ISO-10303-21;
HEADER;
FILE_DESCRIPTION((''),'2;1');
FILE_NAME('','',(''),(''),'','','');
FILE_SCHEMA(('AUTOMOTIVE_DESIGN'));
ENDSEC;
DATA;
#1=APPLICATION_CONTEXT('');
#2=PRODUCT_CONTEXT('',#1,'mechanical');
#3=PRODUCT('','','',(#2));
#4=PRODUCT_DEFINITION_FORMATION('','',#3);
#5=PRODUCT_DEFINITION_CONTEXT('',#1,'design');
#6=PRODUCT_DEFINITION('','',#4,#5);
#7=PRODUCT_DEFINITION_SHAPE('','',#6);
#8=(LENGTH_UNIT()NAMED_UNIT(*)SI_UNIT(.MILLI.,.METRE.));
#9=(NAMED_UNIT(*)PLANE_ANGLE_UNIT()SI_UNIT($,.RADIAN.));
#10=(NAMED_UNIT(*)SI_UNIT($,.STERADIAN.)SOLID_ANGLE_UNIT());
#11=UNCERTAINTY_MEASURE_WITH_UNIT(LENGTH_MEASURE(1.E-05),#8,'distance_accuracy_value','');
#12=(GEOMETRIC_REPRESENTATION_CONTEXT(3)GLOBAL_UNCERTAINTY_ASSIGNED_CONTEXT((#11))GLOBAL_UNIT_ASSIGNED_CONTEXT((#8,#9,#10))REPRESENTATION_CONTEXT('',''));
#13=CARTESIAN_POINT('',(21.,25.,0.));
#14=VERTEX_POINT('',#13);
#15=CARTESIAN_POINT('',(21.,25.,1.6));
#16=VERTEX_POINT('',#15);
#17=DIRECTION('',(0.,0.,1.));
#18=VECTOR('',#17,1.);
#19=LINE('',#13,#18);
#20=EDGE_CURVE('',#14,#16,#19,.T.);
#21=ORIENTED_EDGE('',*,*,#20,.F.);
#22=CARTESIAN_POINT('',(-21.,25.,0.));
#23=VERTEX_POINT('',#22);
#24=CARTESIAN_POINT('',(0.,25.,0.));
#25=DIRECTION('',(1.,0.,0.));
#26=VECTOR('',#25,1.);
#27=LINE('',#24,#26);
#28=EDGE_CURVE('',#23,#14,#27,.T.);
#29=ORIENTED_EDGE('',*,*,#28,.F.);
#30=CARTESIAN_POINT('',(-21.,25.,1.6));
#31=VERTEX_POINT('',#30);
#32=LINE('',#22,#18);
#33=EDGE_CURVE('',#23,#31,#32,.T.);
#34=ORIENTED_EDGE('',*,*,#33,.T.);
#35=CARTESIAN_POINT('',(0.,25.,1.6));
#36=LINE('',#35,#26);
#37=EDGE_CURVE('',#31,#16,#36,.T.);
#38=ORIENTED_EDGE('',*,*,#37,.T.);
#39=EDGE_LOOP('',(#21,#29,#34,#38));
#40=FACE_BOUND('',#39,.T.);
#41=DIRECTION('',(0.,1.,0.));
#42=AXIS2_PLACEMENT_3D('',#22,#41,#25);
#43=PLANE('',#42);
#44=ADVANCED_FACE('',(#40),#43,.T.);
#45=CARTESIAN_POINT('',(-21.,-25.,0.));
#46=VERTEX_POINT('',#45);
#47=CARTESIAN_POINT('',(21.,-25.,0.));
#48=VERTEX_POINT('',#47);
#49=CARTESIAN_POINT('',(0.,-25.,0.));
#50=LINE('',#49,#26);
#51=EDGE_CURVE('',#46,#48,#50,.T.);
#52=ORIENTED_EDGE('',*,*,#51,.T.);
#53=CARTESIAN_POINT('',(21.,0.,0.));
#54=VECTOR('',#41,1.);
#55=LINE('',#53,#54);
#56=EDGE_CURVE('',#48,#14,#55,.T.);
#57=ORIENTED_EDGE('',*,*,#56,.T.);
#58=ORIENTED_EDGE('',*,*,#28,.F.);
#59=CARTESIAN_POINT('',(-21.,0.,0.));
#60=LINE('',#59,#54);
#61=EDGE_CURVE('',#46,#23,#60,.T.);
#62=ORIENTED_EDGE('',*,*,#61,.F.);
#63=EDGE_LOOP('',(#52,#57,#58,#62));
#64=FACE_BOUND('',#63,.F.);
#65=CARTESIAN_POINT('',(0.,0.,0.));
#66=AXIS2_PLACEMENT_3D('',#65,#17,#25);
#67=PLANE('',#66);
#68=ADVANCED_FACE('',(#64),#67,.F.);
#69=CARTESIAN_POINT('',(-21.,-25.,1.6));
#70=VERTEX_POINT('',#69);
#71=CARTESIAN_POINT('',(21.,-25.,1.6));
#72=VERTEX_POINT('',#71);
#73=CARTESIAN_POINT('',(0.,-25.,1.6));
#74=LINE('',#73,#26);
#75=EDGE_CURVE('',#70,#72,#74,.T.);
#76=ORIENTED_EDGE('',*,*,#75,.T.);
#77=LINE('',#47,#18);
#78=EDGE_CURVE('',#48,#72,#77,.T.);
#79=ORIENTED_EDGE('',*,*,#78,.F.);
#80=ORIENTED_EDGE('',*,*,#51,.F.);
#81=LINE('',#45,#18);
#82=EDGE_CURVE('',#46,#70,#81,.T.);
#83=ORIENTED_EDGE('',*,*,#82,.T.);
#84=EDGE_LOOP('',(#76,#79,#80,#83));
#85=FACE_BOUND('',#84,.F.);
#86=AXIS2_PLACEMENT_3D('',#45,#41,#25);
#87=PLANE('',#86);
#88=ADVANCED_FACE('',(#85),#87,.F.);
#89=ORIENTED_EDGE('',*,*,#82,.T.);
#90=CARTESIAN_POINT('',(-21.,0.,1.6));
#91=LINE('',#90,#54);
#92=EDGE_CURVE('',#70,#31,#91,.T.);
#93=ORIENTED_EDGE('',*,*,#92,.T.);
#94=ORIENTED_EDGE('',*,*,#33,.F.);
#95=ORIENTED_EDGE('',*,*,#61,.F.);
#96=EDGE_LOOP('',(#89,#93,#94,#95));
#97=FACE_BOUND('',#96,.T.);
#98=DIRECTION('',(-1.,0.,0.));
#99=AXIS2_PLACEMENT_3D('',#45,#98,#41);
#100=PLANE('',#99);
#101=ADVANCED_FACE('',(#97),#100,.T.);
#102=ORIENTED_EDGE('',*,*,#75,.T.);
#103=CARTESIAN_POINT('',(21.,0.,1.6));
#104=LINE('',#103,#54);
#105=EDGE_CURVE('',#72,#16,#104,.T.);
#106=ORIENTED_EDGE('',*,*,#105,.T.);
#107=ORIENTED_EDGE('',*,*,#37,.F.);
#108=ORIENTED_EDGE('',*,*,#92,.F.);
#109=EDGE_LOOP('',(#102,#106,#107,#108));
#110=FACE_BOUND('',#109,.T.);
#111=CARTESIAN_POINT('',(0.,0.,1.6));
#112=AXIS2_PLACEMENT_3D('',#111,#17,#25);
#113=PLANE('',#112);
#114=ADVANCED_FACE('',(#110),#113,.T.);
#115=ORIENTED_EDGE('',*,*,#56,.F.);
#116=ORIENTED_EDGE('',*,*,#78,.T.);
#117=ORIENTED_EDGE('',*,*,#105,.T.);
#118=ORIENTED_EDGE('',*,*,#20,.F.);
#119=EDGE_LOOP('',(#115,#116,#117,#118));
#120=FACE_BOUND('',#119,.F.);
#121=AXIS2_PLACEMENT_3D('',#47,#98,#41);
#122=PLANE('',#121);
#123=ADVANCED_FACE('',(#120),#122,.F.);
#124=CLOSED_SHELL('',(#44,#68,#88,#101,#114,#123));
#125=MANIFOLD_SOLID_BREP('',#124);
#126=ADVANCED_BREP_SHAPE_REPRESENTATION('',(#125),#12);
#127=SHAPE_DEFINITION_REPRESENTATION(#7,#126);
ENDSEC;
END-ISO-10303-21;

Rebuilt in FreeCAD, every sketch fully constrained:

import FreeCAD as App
import Part
import Sketcher

V = App.Vector


def add_polygon(sketch, points):
    """Adds a closed chain of lines whose ends are joined by coincident constraints."""
    first, n = sketch.GeometryCount, len(points)
    for a, b in zip(points, points[1:] + points[:1]):
        sketch.addGeometry(Part.LineSegment(App.Vector(*a, 0), App.Vector(*b, 0)), False)
    for i in range(n):
        sketch.addConstraint(Sketcher.Constraint("Coincident", first + i, 2, first + (i + 1) % n, 1))

doc = App.newDocument("Part")
body = doc.addObject("PartDesign::Body", "Body")

sketch1 = doc.addObject("Sketcher::SketchObject", "Sketch")
body.addObject(sketch1)
sketch1.AttachmentSupport = (doc.XY_Plane, [""])
sketch1.MapMode = "FlatFace"
add_polygon(sketch1, [(-21, 25), (-21, -25), (21, -25), (21, 25)])
sketch1.addConstraint(Sketcher.Constraint("Vertical", 0))
sketch1.addConstraint(Sketcher.Constraint("Horizontal", 1))
sketch1.addConstraint(Sketcher.Constraint("Vertical", 2))
sketch1.addConstraint(Sketcher.Constraint("Horizontal", 3))
sketch1.addConstraint(Sketcher.Constraint("Symmetric", 0, 2, 2, 2, -1, 1))
sketch1.addConstraint(Sketcher.Constraint("DistanceX", 1, 1, 1, 2, 42.0))
sketch1.addConstraint(Sketcher.Constraint("DistanceY", 0, 2, 0, 1, 50.0))
pad1 = doc.addObject("PartDesign::Pad", "Pad")
body.addObject(pad1)
pad1.Profile = sketch1
pad1.Length = 1.6

doc.recompute()
